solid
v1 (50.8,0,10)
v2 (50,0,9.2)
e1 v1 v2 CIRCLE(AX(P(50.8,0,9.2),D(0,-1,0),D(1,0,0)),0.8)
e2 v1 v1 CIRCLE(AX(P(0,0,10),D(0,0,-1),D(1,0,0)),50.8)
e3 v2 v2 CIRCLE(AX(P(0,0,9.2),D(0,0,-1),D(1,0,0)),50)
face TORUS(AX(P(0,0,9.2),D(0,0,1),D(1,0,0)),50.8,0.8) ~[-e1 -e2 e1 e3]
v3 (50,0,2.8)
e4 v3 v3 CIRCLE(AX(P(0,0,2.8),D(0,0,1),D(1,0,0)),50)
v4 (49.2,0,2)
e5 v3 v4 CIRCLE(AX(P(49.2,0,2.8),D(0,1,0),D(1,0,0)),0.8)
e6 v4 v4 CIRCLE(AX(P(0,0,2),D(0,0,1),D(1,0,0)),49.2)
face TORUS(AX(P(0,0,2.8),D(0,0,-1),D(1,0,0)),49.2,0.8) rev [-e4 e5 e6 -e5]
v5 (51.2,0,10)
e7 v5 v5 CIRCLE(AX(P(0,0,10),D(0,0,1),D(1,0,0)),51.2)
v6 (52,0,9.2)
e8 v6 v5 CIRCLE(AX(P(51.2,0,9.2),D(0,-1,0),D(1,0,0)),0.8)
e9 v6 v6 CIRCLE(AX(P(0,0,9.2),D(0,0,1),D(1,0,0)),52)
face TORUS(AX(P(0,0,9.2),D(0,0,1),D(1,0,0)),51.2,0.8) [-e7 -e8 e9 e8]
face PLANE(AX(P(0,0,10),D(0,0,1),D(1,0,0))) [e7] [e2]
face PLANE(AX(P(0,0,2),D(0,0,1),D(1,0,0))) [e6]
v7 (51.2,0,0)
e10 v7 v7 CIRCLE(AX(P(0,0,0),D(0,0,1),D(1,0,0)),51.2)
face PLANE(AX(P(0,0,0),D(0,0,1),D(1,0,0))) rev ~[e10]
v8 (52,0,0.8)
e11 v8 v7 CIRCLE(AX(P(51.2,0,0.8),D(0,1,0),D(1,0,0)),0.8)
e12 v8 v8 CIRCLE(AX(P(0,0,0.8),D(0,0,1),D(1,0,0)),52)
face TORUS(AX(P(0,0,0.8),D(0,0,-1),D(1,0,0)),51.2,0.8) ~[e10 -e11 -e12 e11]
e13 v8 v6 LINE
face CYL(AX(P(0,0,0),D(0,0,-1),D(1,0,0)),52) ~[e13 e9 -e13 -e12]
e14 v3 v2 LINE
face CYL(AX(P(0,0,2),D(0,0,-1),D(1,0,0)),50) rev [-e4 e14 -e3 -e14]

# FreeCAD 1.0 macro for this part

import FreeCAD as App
import Part
import Sketcher
from FreeCAD import Vector


def edges_at(feature, points):
    """Names of the edges that pass closest to the given points."""
    edges = feature.Shape.Edges
    near = lambda p: min(range(len(edges)), key=lambda i: edges[i].distToShape(Part.Vertex(*p))[0])
    return sorted({f"Edge{near(p) + 1}" for p in points})

doc = App.newDocument("Part")
params = doc.addObject("Spreadsheet::Sheet", "Params")
for row, (alias, value) in enumerate([
    ("sketch1_diameter", "100 mm"),
    ("pad1_length", "10 mm"),
    ("sketch2_diameter", "104 mm"),
    ("pad2_length", "10 mm"),
    ("fillet_radius", "0.8 mm"),
], start=1):
    params.set(f"A{row}", alias)
    params.set(f"B{row}", "=" + value)
    params.setAlias(f"B{row}", alias)

body = doc.addObject("PartDesign::Body", "Body")

sketch1 = doc.addObject("Sketcher::SketchObject", "Sketch")
body.addObject(sketch1)
sketch1.AttachmentSupport = (doc.XY_Plane, [""])
sketch1.MapMode = "FlatFace"
sketch1.AttachmentOffset = App.Placement(Vector(0, 0, 2), App.Rotation())
sketch1.addGeometry(Part.Circle(Vector(0, 0, 0), Vector(0, 0, 1), 50), False)
sketch1.addConstraint([
    Sketcher.Constraint("Coincident", 0, 3, -1, 1),
    Sketcher.Constraint("Diameter", 0, 100.0),
])
sketch1.setExpression("Constraints[1]", "Params.sketch1_diameter")
pad1 = doc.addObject("PartDesign::Pad", "Pad")
body.addObject(pad1)
pad1.Profile = sketch1
pad1.setExpression("Length", "Params.pad1_length")
body2 = doc.addObject("PartDesign::Body", "Body001")

sketch2 = doc.addObject("Sketcher::SketchObject", "Sketch001")
body2.addObject(sketch2)
sketch2.AttachmentSupport = (doc.getObject("XY_Plane001"), [""])
sketch2.MapMode = "FlatFace"
sketch2.addGeometry(Part.Circle(Vector(0, 0, 0), Vector(0, 0, 1), 52), False)
sketch2.addConstraint([
    Sketcher.Constraint("Coincident", 0, 3, -1, 1),
    Sketcher.Constraint("Diameter", 0, 104.0),
])
sketch2.setExpression("Constraints[1]", "Params.sketch2_diameter")
pad2 = doc.addObject("PartDesign::Pad", "Pad001")
body2.addObject(pad2)
pad2.Profile = sketch2
pad2.setExpression("Length", "Params.pad2_length")
doc.recompute()

boolean = doc.addObject("PartDesign::Boolean", "Boolean")
body2.addObject(boolean)
boolean.Type = "Cut"
boolean.addObjects([body])
doc.recompute()

fillet = doc.addObject("PartDesign::Fillet", "Fillet")
body2.addObject(fillet)
fillet.Base = (boolean, edges_at(boolean, [
    (-52, 0, 10),
    (-52, 0, 0),
    (-50, 0, 10),
    (-50, 0, 2),
]))
fillet.setExpression("Radius", "Params.fillet_radius")

doc.recompute()
